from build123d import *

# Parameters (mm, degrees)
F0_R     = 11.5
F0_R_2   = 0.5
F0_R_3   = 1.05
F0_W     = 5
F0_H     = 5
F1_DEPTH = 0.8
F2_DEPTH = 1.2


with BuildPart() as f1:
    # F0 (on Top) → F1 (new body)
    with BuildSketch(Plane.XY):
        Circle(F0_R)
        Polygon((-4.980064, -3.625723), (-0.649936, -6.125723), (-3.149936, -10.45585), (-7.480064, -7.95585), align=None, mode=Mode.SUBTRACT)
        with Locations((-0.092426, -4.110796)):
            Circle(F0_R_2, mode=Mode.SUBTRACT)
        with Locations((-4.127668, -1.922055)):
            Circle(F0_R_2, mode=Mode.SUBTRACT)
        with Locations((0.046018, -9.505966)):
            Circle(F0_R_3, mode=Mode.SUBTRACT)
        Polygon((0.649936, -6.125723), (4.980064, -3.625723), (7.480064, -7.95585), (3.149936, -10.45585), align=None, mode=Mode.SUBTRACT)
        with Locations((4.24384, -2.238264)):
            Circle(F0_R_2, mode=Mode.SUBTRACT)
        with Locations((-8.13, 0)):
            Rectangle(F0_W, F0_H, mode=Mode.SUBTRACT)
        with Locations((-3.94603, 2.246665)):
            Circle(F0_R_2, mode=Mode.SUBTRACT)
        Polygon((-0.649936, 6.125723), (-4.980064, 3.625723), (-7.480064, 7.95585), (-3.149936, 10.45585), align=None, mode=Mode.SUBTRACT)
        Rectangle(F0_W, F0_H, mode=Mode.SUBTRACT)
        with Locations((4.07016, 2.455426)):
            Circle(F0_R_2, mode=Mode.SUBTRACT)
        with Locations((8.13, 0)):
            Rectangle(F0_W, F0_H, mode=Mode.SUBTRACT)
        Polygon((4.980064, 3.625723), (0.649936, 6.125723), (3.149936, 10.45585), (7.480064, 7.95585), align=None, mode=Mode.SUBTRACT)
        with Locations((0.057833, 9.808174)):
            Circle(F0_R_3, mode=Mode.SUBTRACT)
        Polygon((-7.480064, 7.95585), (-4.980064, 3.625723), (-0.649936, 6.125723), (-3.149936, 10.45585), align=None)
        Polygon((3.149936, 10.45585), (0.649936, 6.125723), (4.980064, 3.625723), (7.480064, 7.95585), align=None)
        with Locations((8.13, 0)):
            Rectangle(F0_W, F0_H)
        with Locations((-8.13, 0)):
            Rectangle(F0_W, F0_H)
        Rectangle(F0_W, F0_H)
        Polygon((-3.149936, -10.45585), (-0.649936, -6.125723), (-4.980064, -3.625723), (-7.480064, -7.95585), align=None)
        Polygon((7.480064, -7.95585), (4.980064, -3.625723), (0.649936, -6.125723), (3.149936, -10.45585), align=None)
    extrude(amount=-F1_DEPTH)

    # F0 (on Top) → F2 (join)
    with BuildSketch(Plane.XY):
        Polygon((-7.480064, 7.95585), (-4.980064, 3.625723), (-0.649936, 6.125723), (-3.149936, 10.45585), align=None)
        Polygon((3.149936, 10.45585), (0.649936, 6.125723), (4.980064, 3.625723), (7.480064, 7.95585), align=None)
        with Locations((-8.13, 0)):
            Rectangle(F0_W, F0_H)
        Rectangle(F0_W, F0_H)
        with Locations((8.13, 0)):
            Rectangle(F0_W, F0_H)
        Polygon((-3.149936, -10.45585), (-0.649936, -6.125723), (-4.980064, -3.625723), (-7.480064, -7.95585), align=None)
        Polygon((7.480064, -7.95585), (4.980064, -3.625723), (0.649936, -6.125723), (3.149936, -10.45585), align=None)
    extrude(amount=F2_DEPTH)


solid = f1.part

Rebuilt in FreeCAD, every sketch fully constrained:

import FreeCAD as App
import Part
import Sketcher
Q = App.Units.Quantity


def add_polygon(sketch, points):
    """Adds a closed chain of lines whose ends are joined by coincident constraints."""
    first, n = sketch.GeometryCount, len(points)
    for a, b in zip(points, points[1:] + points[:1]):
        sketch.addGeometry(Part.LineSegment(App.Vector(*a, 0), App.Vector(*b, 0)), False)
    for i in range(n):
        sketch.addConstraint(Sketcher.Constraint("Coincident", first + i, 2, first + (i + 1) % n, 1))

doc = App.newDocument("Part")
body = doc.addObject("PartDesign::Body", "Body")

sketch1 = doc.addObject("Sketcher::SketchObject", "Sketch")
body.addObject(sketch1)
sketch1.AttachmentSupport = (doc.XY_Plane, [""])
sketch1.MapMode = "FlatFace"
sketch1.addGeometry([
    Part.Circle(App.Vector(0, 0, 0), App.Vector(0, 0, 1), 11.5),
    Part.Circle(App.Vector(-0.092426, -4.110796, 0), App.Vector(0, 0, 1), 0.5),
    Part.Circle(App.Vector(-4.127668, -1.922055, 0), App.Vector(0, 0, 1), 0.5),
    Part.Circle(App.Vector(0.046018, -9.505966, 0), App.Vector(0, 0, 1), 1.05),
    Part.Circle(App.Vector(4.24384, -2.238264, 0), App.Vector(0, 0, 1), 0.5),
    Part.Circle(App.Vector(-3.94603, 2.246665, 0), App.Vector(0, 0, 1), 0.5),
    Part.Circle(App.Vector(4.07016, 2.455426, 0), App.Vector(0, 0, 1), 0.5),
    Part.Circle(App.Vector(0.057833, 9.808174, 0), App.Vector(0, 0, 1), 1.05),
], False)
sketch1.addConstraint([
    Sketcher.Constraint("Coincident", 0, 3, -1, 1),
    Sketcher.Constraint("Equal", 1, 2),
    Sketcher.Constraint("Equal", 2, 4),
    Sketcher.Constraint("Equal", 4, 5),
    Sketcher.Constraint("Equal", 5, 6),
    Sketcher.Constraint("Equal", 3, 7),
    Sketcher.Constraint("Diameter", 0, Q("23 mm")),
    Sketcher.Constraint("Diameter", 1, Q("1 mm")),
    Sketcher.Constraint("Diameter", 3, Q("2.1 mm")),
    Sketcher.Constraint("DistanceX", 2, 3, 7, 3, Q("4.185501 mm")),
    Sketcher.Constraint("DistanceX", -1, 1, 3, 3, Q("0.046018 mm")),
    Sketcher.Constraint("DistanceX", -1, 1, 4, 3, Q("4.24384 mm")),
    Sketcher.Constraint("DistanceX", 5, 3, -1, 1, Q("3.94603 mm")),
    Sketcher.Constraint("DistanceX", -1, 1, 6, 3, Q("4.07016 mm")),
    Sketcher.Constraint("DistanceY", 1, 3, 2, 3, Q("2.188741 mm")),
    Sketcher.Constraint("DistanceY", 3, 3, 1, 3, Q("5.39517 mm")),
    Sketcher.Constraint("DistanceY", 1, 3, 4, 3, Q("1.872532 mm")),
    Sketcher.Constraint("DistanceY", 2, 3, 5, 3, Q("4.16872 mm")),
    Sketcher.Constraint("DistanceY", 4, 3, 6, 3, Q("4.69369 mm")),
    Sketcher.Constraint("DistanceY", 5, 3, 7, 3, Q("7.561509 mm")),
    Sketcher.Constraint("DistanceX", 1, 3, -1, 1, Q("0.092426 mm")),
    Sketcher.Constraint("DistanceY", 1, 3, -1, 1, Q("4.110796 mm")),
    Sketcher.Constraint("DistanceX", 2, 3, -1, 1, Q("4.127668 mm")),
])
pad1 = doc.addObject("PartDesign::Pad", "Pad")
body.addObject(pad1)
pad1.Profile = sketch1
pad1.Length = 0.8
pad1.Reversed = True

sketch2 = doc.addObject("Sketcher::SketchObject", "Sketch001")
body.addObject(sketch2)
sketch2.AttachmentSupport = (doc.XY_Plane, [""])
sketch2.MapMode = "FlatFace"
add_polygon(sketch2, [(-7.480064, 7.95585), (-4.980064, 3.625723), (-0.649936, 6.125723), (-3.149936, 10.45585)])
add_polygon(sketch2, [(3.149936, 10.45585), (0.649936, 6.125723), (4.980064, 3.625723), (7.480064, 7.95585)])
add_polygon(sketch2, [(-10.63, 2.5), (-10.63, -2.5), (-5.63, -2.5), (-5.63, 2.5)])
add_polygon(sketch2, [(-2.5, 2.5), (-2.5, -2.5), (2.5, -2.5), (2.5, 2.5)])
add_polygon(sketch2, [(5.63, 2.5), (5.63, -2.5), (10.63, -2.5), (10.63, 2.5)])
add_polygon(sketch2, [(-3.149936, -10.45585), (-0.649936, -6.125723), (-4.980064, -3.625723), (-7.480064, -7.95585)])
add_polygon(sketch2, [(7.480064, -7.95585), (4.980064, -3.625723), (0.649936, -6.125723), (3.149936, -10.45585)])
sketch2.addConstraint([
    Sketcher.Constraint("Vertical", 8),
    Sketcher.Constraint("Horizontal", 9),
    Sketcher.Constraint("Vertical", 10),
    Sketcher.Constraint("Horizontal", 11),
    Sketcher.Constraint("Vertical", 12),
    Sketcher.Constraint("Horizontal", 13),
    Sketcher.Constraint("Vertical", 14),
    Sketcher.Constraint("Horizontal", 15),
    Sketcher.Constraint("Vertical", 16),
    Sketcher.Constraint("Horizontal", 17),
    Sketcher.Constraint("Vertical", 18),
    Sketcher.Constraint("Horizontal", 19),
    Sketcher.Constraint("Symmetric", 12, 2, 14, 2, -1, 1),
    Sketcher.Constraint("Symmetric", 10, 2, 16, 2, -1, 1),
    Sketcher.Constraint("Symmetric", 8, 2, 18, 2, -1, 1),
    Sketcher.Constraint("Symmetric", 4, 2, 20, 2, -1, 1),
    Sketcher.Constraint("Symmetric", 5, 2, 21, 2, -1, 1),
    Sketcher.Constraint("Symmetric", 6, 2, 22, 2, -1, 1),
    Sketcher.Constraint("Symmetric", 7, 2, 23, 2, -1, 1),
    Sketcher.Constraint("Symmetric", 0, 2, 24, 2, -1, 1),
    Sketcher.Constraint("Symmetric", 1, 2, 25, 2, -1, 1),
    Sketcher.Constraint("Symmetric", 2, 2, 26, 2, -1, 1),
    Sketcher.Constraint("Symmetric", 3, 2, 27, 2, -1, 1),
    Sketcher.Constraint("Symmetric", 1, 2, 4, 2, -2),
    Sketcher.Constraint("Symmetric", 0, 2, 5, 2, -2),
    Sketcher.Constraint("Symmetric", 3, 2, 6, 2, -2),
    Sketcher.Constraint("Symmetric", 2, 2, 7, 2, -2),
    Sketcher.Constraint("Perpendicular", 0, 1),
    Sketcher.Constraint("Perpendicular", 1, 2),
    Sketcher.Constraint("Perpendicular", 2, 3),
    Sketcher.Constraint("Horizontal", 9, 2, 12, 2),
    Sketcher.Constraint("Horizontal", 11, 2, 14, 2),
    Sketcher.Constraint("Equal", 11, 13),
    Sketcher.Constraint("Equal", 19, 8),
    Sketcher.Constraint("Equal", 0, 1),
    Sketcher.Constraint("DistanceX", 9, 1, 9, 2, Q("5 mm")),
    Sketcher.Constraint("Angle", 0, Q("-60 deg")),
    Sketcher.Constraint("Distance", 0, Q("5 mm")),
    Sketcher.Constraint("DistanceX", 8, 2, -1, 1, Q("10.63 mm")),
    Sketcher.Constraint("DistanceX", 0, 2, 4, 2, Q("5.63 mm")),
    Sketcher.Constraint("DistanceY", -1, 1, 2, 2, Q("10.45585 mm")),
])
pad2 = doc.addObject("PartDesign::Pad", "Pad001")
body.addObject(pad2)
pad2.Profile = sketch2
pad2.Length = 1.2

doc.recompute()
